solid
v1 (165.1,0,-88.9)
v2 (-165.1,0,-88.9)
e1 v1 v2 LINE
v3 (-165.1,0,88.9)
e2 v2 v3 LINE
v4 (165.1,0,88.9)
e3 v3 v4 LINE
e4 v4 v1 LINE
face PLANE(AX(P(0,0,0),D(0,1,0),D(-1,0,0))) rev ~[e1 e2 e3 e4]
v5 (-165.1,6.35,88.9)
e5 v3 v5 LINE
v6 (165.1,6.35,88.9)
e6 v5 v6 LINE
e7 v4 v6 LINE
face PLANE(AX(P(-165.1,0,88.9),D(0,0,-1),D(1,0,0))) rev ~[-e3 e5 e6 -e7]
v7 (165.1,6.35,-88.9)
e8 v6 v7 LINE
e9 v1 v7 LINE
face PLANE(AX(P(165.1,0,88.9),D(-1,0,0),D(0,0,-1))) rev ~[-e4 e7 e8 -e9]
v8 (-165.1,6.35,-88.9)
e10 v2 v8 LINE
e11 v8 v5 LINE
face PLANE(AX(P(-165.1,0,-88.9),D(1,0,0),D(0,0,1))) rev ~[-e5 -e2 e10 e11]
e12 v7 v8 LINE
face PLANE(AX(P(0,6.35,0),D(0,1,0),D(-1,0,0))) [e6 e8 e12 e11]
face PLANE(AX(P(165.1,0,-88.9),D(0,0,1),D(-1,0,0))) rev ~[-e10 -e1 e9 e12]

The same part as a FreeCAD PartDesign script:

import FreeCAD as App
import Part
import Sketcher
from FreeCAD import Vector
Q = App.Units.Quantity

doc = App.newDocument("Part")
body = doc.addObject("PartDesign::Body", "Body")

# Sketch on XZ plane
sketch1 = body.newObject("Sketcher::SketchObject", "Sketch")
sketch1.AttachmentSupport = (doc.getObject("XZ_Plane"), [""])
sketch1.MapMode = "FlatFace"
sketch1.addGeometry([
    Part.LineSegment(Vector(-165.1, -88.9, 0), Vector(-165.1, 88.9, 0)),
    Part.LineSegment(Vector(-165.1, 88.9, 0), Vector(165.1, 88.9, 0)),
    Part.LineSegment(Vector(165.1, 88.9, 0), Vector(165.1, -88.9, 0)),
    Part.LineSegment(Vector(165.1, -88.9, 0), Vector(-165.1, -88.9, 0)),
], False)
sketch1.addConstraint([
    Sketcher.Constraint("Coincident", 0, 2, 1, 1),
    Sketcher.Constraint("Coincident", 1, 2, 2, 1),
    Sketcher.Constraint("Coincident", 2, 2, 3, 1),
    Sketcher.Constraint("Coincident", 3, 2, 0, 1),
    Sketcher.Constraint("Vertical", 0),
    Sketcher.Constraint("Horizontal", 1),
    Sketcher.Constraint("Vertical", 2),
    Sketcher.Constraint("Horizontal", 3),
    Sketcher.Constraint("Symmetric", 0, 2, 2, 2, -1, 1),
    Sketcher.Constraint("DistanceX", 1, 1, 1, 2, Q("13 in")),
    Sketcher.Constraint("DistanceY", 0, 1, 0, 2, Q("7 in")),
])
pad1 = body.newObject("PartDesign::Pad", "Pad")
pad1.Profile = sketch1
pad1.Length = Q("0.25 in")
pad1.Reversed = True

doc.recompute()
